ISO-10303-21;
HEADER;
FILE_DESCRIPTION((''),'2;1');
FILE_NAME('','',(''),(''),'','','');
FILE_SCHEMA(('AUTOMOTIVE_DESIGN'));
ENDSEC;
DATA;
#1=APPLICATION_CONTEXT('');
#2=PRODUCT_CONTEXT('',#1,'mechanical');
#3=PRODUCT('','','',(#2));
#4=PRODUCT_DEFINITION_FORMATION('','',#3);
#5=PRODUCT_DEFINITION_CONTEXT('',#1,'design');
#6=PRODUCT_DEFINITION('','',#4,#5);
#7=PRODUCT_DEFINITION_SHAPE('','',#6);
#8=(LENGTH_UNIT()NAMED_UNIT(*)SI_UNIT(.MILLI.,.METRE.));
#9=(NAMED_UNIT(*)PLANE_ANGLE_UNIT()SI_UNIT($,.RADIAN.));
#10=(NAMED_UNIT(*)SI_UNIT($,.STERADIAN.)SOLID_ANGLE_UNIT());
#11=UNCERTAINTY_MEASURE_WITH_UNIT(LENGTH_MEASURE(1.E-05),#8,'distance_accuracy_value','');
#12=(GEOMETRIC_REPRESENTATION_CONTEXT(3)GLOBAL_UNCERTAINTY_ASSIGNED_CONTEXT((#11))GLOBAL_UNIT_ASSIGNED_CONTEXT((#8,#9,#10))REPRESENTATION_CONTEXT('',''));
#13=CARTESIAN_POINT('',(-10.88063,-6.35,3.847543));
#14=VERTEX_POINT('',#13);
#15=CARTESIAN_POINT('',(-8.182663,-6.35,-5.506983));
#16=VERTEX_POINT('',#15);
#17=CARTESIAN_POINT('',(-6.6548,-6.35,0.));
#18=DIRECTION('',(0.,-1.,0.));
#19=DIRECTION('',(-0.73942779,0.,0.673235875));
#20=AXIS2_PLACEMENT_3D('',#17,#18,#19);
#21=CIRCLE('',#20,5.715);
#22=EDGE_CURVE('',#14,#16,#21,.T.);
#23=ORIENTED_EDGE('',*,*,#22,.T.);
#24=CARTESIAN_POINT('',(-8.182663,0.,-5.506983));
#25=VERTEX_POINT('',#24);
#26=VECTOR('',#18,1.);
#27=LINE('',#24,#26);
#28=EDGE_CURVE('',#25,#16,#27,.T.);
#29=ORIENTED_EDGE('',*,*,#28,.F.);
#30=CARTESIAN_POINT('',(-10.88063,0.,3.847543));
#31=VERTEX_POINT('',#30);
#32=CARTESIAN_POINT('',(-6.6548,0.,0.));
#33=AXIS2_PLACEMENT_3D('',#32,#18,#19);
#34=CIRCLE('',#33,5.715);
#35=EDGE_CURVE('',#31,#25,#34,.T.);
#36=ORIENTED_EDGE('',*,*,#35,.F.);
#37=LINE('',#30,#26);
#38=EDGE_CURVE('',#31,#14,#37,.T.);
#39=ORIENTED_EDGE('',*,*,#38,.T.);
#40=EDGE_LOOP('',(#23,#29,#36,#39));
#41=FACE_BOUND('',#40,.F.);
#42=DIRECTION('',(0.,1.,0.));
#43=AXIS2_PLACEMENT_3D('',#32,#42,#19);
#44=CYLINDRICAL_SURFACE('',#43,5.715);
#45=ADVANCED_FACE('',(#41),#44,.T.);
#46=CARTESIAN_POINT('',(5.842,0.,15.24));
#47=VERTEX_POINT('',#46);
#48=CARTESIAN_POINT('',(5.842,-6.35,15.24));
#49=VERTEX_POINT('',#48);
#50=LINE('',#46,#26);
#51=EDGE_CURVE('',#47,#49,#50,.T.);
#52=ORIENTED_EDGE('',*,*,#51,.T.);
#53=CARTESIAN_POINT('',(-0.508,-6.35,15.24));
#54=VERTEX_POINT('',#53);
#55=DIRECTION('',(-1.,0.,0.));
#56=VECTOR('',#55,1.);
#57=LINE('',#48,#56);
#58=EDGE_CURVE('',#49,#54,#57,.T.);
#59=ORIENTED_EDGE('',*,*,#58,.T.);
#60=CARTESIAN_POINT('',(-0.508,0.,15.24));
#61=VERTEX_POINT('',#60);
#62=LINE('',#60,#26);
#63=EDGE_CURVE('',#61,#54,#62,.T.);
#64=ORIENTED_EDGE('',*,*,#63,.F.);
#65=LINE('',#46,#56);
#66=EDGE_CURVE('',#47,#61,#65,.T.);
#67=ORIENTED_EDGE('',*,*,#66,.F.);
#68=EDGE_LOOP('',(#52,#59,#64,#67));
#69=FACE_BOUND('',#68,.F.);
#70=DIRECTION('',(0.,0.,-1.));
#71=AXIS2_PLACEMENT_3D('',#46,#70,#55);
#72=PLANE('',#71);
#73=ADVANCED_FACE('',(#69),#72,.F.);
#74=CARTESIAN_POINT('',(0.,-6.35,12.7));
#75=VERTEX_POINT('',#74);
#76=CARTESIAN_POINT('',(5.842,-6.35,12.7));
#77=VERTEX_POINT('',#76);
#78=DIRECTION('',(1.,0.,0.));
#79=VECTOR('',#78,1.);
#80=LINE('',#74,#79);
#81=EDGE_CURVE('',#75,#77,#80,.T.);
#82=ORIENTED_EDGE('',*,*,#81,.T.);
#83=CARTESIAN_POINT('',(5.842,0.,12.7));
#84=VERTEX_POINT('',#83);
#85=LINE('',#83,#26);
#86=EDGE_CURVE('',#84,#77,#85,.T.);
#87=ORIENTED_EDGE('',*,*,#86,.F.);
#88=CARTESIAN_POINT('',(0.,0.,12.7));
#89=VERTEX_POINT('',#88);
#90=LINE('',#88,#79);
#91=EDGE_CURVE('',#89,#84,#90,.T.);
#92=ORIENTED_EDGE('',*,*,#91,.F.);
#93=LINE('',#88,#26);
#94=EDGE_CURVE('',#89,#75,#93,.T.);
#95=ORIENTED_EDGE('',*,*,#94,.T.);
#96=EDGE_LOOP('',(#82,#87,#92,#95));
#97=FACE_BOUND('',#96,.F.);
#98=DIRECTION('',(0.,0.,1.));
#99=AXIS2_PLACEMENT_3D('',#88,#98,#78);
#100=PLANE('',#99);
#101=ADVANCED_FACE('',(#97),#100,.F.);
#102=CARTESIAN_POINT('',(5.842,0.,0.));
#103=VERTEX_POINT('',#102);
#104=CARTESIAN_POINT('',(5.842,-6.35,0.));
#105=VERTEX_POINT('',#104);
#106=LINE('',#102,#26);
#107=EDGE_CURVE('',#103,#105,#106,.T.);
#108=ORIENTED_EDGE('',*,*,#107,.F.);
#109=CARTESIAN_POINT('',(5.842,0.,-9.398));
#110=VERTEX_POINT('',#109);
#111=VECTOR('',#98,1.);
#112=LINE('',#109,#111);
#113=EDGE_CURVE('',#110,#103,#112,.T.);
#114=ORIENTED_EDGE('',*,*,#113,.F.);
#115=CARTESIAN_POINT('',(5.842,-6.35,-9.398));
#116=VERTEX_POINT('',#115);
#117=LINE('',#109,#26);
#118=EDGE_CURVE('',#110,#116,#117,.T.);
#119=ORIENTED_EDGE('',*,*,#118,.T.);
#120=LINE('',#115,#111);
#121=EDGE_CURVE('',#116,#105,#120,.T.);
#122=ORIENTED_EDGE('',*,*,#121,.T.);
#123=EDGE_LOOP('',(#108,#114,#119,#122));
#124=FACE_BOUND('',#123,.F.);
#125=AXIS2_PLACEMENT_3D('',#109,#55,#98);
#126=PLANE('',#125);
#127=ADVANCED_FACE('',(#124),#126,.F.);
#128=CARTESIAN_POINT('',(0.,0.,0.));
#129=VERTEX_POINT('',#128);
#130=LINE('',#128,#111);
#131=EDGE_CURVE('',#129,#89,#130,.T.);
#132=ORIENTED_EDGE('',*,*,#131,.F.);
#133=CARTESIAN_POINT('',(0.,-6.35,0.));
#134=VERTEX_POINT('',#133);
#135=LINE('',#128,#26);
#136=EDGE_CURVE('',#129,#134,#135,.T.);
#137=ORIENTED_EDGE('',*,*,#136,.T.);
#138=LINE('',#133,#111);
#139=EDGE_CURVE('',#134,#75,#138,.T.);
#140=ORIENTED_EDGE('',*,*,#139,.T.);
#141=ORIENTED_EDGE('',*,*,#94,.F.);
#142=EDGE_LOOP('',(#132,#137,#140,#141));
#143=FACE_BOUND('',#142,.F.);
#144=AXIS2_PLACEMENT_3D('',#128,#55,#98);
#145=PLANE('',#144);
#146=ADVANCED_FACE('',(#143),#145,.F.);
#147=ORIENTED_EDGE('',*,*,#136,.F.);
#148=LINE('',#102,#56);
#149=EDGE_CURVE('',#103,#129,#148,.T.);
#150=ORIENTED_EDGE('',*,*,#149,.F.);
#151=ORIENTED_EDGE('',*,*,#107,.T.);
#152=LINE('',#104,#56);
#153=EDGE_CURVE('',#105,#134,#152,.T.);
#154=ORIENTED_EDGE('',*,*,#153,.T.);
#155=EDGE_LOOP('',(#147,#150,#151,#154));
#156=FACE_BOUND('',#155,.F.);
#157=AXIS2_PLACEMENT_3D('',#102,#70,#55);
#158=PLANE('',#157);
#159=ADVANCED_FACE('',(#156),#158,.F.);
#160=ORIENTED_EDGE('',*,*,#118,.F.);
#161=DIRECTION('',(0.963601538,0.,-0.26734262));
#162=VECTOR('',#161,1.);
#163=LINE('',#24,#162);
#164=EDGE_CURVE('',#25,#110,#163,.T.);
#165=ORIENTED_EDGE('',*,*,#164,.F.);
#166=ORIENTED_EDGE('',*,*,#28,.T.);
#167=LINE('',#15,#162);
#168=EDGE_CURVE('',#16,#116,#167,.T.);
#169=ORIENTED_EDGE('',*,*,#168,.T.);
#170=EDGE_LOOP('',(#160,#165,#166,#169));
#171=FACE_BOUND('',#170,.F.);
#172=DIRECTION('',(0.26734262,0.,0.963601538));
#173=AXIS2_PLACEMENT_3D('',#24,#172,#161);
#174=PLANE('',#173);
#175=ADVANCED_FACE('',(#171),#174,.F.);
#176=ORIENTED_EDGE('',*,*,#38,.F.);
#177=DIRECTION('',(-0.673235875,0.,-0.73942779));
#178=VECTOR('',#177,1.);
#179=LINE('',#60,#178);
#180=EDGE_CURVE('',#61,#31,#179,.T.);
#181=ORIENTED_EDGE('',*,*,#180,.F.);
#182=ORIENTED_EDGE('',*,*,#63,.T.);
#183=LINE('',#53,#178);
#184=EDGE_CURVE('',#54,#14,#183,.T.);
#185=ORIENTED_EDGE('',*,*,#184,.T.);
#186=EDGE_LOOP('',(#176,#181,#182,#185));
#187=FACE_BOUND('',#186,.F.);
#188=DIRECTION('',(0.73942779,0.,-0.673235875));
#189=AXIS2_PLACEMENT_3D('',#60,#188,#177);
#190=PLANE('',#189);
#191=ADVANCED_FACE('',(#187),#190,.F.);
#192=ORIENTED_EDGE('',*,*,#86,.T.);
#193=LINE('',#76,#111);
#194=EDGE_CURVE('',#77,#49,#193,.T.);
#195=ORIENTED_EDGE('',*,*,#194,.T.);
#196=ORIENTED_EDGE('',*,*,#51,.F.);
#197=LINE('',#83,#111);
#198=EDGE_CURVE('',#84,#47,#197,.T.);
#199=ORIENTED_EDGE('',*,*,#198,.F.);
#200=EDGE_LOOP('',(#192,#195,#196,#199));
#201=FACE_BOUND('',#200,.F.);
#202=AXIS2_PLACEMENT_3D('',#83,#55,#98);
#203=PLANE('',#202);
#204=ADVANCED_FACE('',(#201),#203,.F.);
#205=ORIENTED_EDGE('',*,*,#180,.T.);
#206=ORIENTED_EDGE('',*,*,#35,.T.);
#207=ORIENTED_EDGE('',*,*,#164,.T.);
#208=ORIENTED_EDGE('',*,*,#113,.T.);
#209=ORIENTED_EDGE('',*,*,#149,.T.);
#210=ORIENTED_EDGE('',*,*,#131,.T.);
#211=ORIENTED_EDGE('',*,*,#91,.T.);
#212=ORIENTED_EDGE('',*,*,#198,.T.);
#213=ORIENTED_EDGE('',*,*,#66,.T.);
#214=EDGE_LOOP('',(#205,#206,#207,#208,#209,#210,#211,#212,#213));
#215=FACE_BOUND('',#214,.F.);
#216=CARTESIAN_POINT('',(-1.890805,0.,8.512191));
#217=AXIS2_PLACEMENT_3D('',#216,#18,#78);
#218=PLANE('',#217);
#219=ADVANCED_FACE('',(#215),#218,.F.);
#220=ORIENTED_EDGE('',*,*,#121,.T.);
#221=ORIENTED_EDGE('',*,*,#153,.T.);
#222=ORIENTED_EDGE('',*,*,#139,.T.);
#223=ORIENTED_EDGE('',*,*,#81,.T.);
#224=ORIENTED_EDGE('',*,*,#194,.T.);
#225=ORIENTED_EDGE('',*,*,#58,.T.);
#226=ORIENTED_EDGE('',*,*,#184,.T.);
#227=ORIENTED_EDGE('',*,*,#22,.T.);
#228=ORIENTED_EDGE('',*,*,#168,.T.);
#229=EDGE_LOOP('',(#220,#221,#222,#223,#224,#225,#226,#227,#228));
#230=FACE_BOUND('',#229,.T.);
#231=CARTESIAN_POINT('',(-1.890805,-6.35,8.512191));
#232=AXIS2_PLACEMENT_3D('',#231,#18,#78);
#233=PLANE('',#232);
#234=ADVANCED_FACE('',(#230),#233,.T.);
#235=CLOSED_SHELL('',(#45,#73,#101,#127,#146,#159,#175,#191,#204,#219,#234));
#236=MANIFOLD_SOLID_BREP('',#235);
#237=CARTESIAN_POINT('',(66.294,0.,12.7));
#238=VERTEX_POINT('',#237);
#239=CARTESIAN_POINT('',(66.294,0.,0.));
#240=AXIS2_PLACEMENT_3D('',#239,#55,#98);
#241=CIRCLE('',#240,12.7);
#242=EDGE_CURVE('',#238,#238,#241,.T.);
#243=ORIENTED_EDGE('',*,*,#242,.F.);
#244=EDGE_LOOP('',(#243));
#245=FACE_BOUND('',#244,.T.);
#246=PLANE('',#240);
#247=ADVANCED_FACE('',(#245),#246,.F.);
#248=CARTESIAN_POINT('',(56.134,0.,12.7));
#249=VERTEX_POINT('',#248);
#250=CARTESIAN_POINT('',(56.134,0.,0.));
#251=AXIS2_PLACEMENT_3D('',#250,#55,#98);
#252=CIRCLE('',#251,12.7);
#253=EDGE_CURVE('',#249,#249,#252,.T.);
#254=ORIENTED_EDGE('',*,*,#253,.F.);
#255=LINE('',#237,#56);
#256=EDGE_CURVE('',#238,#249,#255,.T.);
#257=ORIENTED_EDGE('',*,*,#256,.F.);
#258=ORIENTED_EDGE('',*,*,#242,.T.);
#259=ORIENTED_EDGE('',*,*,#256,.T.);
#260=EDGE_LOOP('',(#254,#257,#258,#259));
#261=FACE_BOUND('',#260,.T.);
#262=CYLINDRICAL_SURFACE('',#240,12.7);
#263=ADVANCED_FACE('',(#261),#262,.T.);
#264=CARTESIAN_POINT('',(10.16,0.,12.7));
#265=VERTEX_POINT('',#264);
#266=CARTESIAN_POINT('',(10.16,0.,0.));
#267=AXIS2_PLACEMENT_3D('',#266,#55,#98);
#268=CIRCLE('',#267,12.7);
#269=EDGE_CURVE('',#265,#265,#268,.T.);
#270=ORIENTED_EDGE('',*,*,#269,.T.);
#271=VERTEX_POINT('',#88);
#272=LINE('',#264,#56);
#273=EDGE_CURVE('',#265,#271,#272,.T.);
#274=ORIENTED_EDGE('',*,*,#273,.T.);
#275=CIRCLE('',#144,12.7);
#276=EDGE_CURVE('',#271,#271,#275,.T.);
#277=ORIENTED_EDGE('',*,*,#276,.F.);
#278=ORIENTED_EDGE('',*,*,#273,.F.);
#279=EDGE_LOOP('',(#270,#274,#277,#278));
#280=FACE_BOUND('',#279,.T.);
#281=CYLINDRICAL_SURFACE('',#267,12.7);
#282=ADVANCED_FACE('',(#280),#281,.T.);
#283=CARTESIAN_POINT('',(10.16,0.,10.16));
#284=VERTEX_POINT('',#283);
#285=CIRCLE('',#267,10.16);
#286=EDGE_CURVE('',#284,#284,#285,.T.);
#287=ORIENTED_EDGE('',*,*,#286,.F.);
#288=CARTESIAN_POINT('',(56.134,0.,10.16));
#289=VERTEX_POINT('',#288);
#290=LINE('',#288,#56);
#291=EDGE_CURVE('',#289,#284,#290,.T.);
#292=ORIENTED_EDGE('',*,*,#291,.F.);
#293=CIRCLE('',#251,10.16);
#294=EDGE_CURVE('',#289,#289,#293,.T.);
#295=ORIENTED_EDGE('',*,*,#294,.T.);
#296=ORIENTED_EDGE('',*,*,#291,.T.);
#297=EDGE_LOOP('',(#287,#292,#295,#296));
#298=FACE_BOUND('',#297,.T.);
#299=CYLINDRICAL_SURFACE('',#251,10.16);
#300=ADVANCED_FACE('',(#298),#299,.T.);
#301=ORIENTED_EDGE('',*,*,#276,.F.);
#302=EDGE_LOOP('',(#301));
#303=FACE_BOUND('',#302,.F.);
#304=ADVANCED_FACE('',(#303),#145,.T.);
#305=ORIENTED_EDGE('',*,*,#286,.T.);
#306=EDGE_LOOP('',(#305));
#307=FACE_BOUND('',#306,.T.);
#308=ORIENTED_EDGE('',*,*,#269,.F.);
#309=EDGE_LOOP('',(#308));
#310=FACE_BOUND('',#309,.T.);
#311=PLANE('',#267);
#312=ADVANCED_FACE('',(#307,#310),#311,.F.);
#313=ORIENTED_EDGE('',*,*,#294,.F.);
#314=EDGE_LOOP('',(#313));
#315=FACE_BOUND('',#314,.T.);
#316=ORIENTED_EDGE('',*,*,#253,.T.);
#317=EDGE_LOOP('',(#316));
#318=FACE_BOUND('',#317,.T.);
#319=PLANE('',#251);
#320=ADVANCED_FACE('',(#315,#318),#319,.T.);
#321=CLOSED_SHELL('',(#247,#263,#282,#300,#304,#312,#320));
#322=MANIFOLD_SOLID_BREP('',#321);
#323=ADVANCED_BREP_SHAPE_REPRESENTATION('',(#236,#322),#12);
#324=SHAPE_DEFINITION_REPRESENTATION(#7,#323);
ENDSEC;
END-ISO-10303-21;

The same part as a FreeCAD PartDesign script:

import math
import FreeCAD as App
import Part
import Sketcher
Q = App.Units.Quantity

doc = App.newDocument("Part")
body = doc.addObject("PartDesign::Body", "Body")

# Sketch on XZ plane
sketch1 = body.newObject("Sketcher::SketchObject", "Sketch")
sketch1.AttachmentSupport = (doc.getObject("XZ_Plane"), [""])
sketch1.MapMode = "FlatFace"
sketch1.addGeometry([
    Part.LineSegment(App.Vector(66.294, 0, 0), App.Vector(66.294, 12.7, 0)),  # 0
    Part.LineSegment(App.Vector(66.294, 12.7, 0), App.Vector(56.134, 12.7, 0)),  # 1
    Part.LineSegment(App.Vector(56.134, 12.7, 0), App.Vector(56.134, 10.16, 0)),  # 2
    Part.LineSegment(App.Vector(56.134, 10.16, 0), App.Vector(10.16, 10.16, 0)),  # 3
    Part.LineSegment(App.Vector(10.16, 10.16, 0), App.Vector(10.16, 12.7, 0)),  # 4
    Part.LineSegment(App.Vector(10.16, 12.7, 0), App.Vector(0, 12.7, 0)),  # 5
    Part.LineSegment(App.Vector(0, 12.7, 0), App.Vector(0, 0, 0)),  # 6
    Part.LineSegment(App.Vector(0, 0, 0), App.Vector(66.294, 0, 0)),  # 7
], False)
sketch1.addConstraint([
    Sketcher.Constraint("Coincident", 0, 2, 1, 1),
    Sketcher.Constraint("Coincident", 1, 2, 2, 1),
    Sketcher.Constraint("Coincident", 2, 2, 3, 1),
    Sketcher.Constraint("Coincident", 3, 2, 4, 1),
    Sketcher.Constraint("Coincident", 4, 2, 5, 1),
    Sketcher.Constraint("Coincident", 5, 2, 6, 1),
    Sketcher.Constraint("Coincident", 6, 2, 7, 1),
    Sketcher.Constraint("Coincident", 7, 2, 0, 1),
    Sketcher.Constraint("Vertical", 0),
    Sketcher.Constraint("Horizontal", 1),
    Sketcher.Constraint("Vertical", 2),
    Sketcher.Constraint("Horizontal", 3),
    Sketcher.Constraint("Vertical", 4),
    Sketcher.Constraint("Horizontal", 5),
    Sketcher.Constraint("Vertical", 6),
    Sketcher.Constraint("Horizontal", 7),
    Sketcher.Constraint("Coincident", 6, 2, -1, 1),
    Sketcher.Constraint("Horizontal", 1, 2, 4, 2),
    Sketcher.Constraint("Equal", 1, 5),
    Sketcher.Constraint("DistanceX", 1, 2, 1, 1, Q("0.4 in")),
    Sketcher.Constraint("DistanceY", 0, 1, 0, 2, Q("0.5 in")),
    Sketcher.Constraint("DistanceY", 2, 2, 2, 1, Q("0.1 in")),
    Sketcher.Constraint("DistanceX", 3, 2, 3, 1, Q("1.81 in")),
])
revolution = body.newObject("PartDesign::Revolution", "Revolution")
revolution.Profile = sketch1
revolution.ReferenceAxis = (sketch1, ["H_Axis"])
revolution.Angle = 360

# Sketch on XZ plane
sketch2 = body.newObject("Sketcher::SketchObject", "Sketch001")
sketch2.AttachmentSupport = (doc.getObject("XZ_Plane"), [""])
sketch2.MapMode = "FlatFace"
sketch2.addGeometry(Part.Circle(App.Vector(-6.6548, 0, 0), App.Vector(0, 0, 1), 3.175), False)
sketch2.addConstraint([
    Sketcher.Constraint("PointOnObject", 0, 3, -1),
    Sketcher.Constraint("Diameter", 0, Q("0.25 in")),
    Sketcher.Constraint("DistanceX", 0, 3, -1, 1, Q("0.262 in")),
])
pocket1 = body.newObject("PartDesign::Pocket", "Pocket")
pocket1.Profile = sketch2
pocket1.Type = "ThroughAll"
body2 = doc.addObject("PartDesign::Body", "Body001")

# Sketch on XZ plane
sketch3 = body2.newObject("Sketcher::SketchObject", "Sketch002")
sketch3.AttachmentSupport = (doc.getObject("XZ_Plane001"), [""])
sketch3.MapMode = "FlatFace"
sketch3.addGeometry([
    Part.LineSegment(App.Vector(0, 0, 0), App.Vector(0, 12.7, 0)),  # 0
    Part.LineSegment(App.Vector(0, 12.7, 0), App.Vector(5.842, 12.7, 0)),  # 1
    Part.LineSegment(App.Vector(5.842, 12.7, 0), App.Vector(5.842, 15.24, 0)),  # 2
    Part.LineSegment(App.Vector(5.842, 15.24, 0), App.Vector(-0.508, 15.24, 0)),  # 3
    Part.LineSegment(App.Vector(-0.508, 15.24, 0), App.Vector(-10.88063, 3.847543, 0)),  # 4
    Part.ArcOfCircle(Part.Circle(App.Vector(-6.6548, 0, 0), App.Vector(0, 0, 1), 5.715), math.radians(137.682695), math.radians(254.493802)),  # 5
    Part.LineSegment(App.Vector(-8.182663, -5.506983, 0), App.Vector(5.842, -9.398, 0)),  # 6
    Part.LineSegment(App.Vector(5.842, -9.398, 0), App.Vector(5.842, 0, 0)),  # 7
    Part.LineSegment(App.Vector(5.842, 0, 0), App.Vector(0, 0, 0)),  # 8
], False)
sketch3.addConstraint([
    Sketcher.Constraint("Coincident", 0, 2, 1, 1),
    Sketcher.Constraint("Coincident", 1, 2, 2, 1),
    Sketcher.Constraint("Coincident", 2, 2, 3, 1),
    Sketcher.Constraint("Coincident", 3, 2, 4, 1),
    Sketcher.Constraint("Tangent", 4, 2, 5, 1),
    Sketcher.Constraint("Tangent", 5, 2, 6, 1),
    Sketcher.Constraint("Coincident", 6, 2, 7, 1),
    Sketcher.Constraint("Coincident", 7, 2, 8, 1),
    Sketcher.Constraint("Coincident", 8, 2, 0, 1),
    Sketcher.Constraint("Vertical", 0),
    Sketcher.Constraint("Horizontal", 1),
    Sketcher.Constraint("Vertical", 2),
    Sketcher.Constraint("Horizontal", 3),
    Sketcher.Constraint("Vertical", 7),
    Sketcher.Constraint("Horizontal", 8),
    Sketcher.Constraint("Coincident", 8, 2, -1, 1),
    Sketcher.Constraint("PointOnObject", 5, 3, -1),
    Sketcher.Constraint("Vertical", 2, 2, 6, 2),
    Sketcher.Constraint("DistanceY", 0, 1, 0, 2, Q("0.5 in")),
    Sketcher.Constraint("DistanceY", 2, 1, 2, 2, Q("0.1 in")),
    Sketcher.Constraint("Radius", 5, Q("0.225 in")),
    Sketcher.Constraint("DistanceX", 1, 1, 1, 2, Q("0.23 in")),
    Sketcher.Constraint("DistanceX", 3, 2, 3, 1, Q("0.25 in")),
    Sketcher.Constraint("DistanceY", 7, 1, 7, 2, Q("0.37 in")),
    Sketcher.Constraint("DistanceX", 5, 3, -1, 1, Q("0.262 in")),
])
pad1 = body2.newObject("PartDesign::Pad", "Pad")
pad1.Profile = sketch3
pad1.Length = Q("0.25 in")

doc.recompute()
